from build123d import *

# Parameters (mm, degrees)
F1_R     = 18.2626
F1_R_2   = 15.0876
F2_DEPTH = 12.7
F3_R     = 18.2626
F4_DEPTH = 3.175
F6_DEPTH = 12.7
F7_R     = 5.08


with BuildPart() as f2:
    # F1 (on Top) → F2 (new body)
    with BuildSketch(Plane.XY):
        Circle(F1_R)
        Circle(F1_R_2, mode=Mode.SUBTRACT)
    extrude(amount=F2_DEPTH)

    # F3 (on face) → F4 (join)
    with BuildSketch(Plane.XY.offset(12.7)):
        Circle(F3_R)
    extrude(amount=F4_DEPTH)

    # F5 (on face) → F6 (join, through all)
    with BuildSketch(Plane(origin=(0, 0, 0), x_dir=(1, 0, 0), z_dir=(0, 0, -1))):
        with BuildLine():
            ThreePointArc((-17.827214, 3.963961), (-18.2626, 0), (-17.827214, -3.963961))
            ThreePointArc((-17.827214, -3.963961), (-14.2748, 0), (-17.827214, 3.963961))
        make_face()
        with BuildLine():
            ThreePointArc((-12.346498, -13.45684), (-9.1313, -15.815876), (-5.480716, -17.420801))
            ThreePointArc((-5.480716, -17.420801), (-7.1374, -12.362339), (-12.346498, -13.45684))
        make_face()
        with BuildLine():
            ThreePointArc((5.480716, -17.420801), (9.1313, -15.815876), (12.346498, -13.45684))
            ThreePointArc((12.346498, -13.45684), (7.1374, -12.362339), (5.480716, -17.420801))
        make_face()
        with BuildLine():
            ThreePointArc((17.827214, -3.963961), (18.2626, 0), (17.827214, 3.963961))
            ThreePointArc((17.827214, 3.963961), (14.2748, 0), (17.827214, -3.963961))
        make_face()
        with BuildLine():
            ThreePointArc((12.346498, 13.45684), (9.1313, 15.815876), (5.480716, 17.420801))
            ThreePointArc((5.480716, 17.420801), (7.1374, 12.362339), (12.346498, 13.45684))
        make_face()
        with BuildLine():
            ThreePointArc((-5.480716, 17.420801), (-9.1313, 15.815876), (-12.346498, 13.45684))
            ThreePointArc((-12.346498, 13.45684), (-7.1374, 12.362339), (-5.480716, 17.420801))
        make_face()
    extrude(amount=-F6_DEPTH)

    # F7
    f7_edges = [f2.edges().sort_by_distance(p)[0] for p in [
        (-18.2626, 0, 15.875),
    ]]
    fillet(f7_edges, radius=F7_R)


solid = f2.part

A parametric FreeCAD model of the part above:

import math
import FreeCAD as App
import Part
import Sketcher

V = App.Vector
Q = App.Units.Quantity


def edges_at(feature, points):
    """Names of the edges that pass closest to the given points."""
    edges = feature.Shape.Edges
    near = lambda p: min(range(len(edges)), key=lambda i: edges[i].distToShape(Part.Vertex(*p))[0])
    return sorted({f"Edge{near(p) + 1}" for p in points})

doc = App.newDocument("Part")
body = doc.addObject("PartDesign::Body", "Body")

# Sketch on XY plane
sketch1 = body.newObject("Sketcher::SketchObject", "Sketch")
sketch1.AttachmentSupport = (doc.getObject("XY_Plane"), [""])
sketch1.MapMode = "FlatFace"
sketch1.addGeometry([
    Part.Circle(V(0, 0, 0), V(0, 0, 1), 18),
    Part.Circle(V(0, 0, 0), V(0, 0, 1), 15),
], False)
sketch1.addConstraint([
    Sketcher.Constraint("Coincident", 0, 3, -1, 1),
    Sketcher.Constraint("Coincident", 1, 3, -1, 1),
    Sketcher.Constraint("Diameter", 0, Q("1.438 in")),
    Sketcher.Constraint("Diameter", 1, Q("1.188 in")),
])
pad1 = body.newObject("PartDesign::Pad", "Pad")
pad1.Profile = sketch1
pad1.Length = Q("0.5 in")

# Sketch on XY plane
sketch2 = body.newObject("Sketcher::SketchObject", "Sketch001")
sketch2.AttachmentSupport = (doc.getObject("XY_Plane"), [""])
sketch2.MapMode = "FlatFace"
sketch2.AttachmentOffset = App.Placement(V(0, 0, 0.5 * 25.4), App.Rotation())
sketch2.addGeometry(Part.Circle(V(0, 0, 0), V(0, 0, 1), 18), False)
sketch2.addConstraint([
    Sketcher.Constraint("Coincident", 0, 3, -1, 1),
    Sketcher.Constraint("Diameter", 0, Q("1.438 in")),
])
pad2 = body.newObject("PartDesign::Pad", "Pad001")
pad2.Profile = sketch2
pad2.Length = Q("0.125 in")

# Sketch on XY plane
sketch3 = body.newObject("Sketcher::SketchObject", "Sketch002")
sketch3.AttachmentSupport = (doc.getObject("XY_Plane"), [""])
sketch3.MapMode = "FlatFace"
sketch3.addGeometry([
    Part.ArcOfCircle(Part.Circle(V(-0.000015, 0, 0), V(0, 0, 1), 18.262585), math.radians(167.463961), math.radians(192.536039)),  # 0
    Part.ArcOfCircle(Part.Circle(V(-18.2626, 0, 0), V(0, 0, 1), 3.9878), math.radians(-83.731983), math.radians(83.731983)),  # 1
    Part.ArcOfCircle(Part.Circle(V(-0.00001, 0.000018, 0), V(0, 0, 1), 18.26258), math.radians(107.463956), math.radians(132.536042)),  # 2
    Part.ArcOfCircle(Part.Circle(V(-9.1313, 15.815875, 0), V(0, 0, 1), 3.9878), math.radians(-143.731992), math.radians(23.731991)),  # 3
    Part.ArcOfCircle(Part.Circle(V(0.00001, 0.000018, 0), V(0, 0, 1), 18.26258), math.radians(47.463958), math.radians(72.536044)),  # 4
    Part.ArcOfCircle(Part.Circle(V(9.1313, 15.815875, 0), V(0, 0, 1), 3.9878), math.radians(156.268009), math.radians(323.731992)),  # 5
    Part.ArcOfCircle(Part.Circle(V(0.000015, 0, 0), V(0, 0, 1), 18.262585), math.radians(-12.536039), math.radians(12.536039)),  # 6
    Part.ArcOfCircle(Part.Circle(V(18.2626, 0, 0), V(0, 0, 1), 3.9878), math.radians(96.268017), math.radians(263.731983)),  # 7
    Part.ArcOfCircle(Part.Circle(V(0.00001, -0.000018, 0), V(0, 0, 1), 18.26258), math.radians(-72.536044), math.radians(-47.463958)),  # 8
    Part.ArcOfCircle(Part.Circle(V(9.1313, -15.815875, 0), V(0, 0, 1), 3.9878), math.radians(36.268008), math.radians(203.731991)),  # 9
    Part.ArcOfCircle(Part.Circle(V(-0.00001, -0.000018, 0), V(0, 0, 1), 18.26258), math.radians(-132.536042), math.radians(-107.463956)),  # 10
    Part.ArcOfCircle(Part.Circle(V(-9.1313, -15.815875, 0), V(0, 0, 1), 3.9878), math.radians(-23.731991), math.radians(143.731992)),  # 11
], False)
sketch3.addConstraint([
    Sketcher.Constraint("Coincident", 0, 1, 1, 2),
    Sketcher.Constraint("Coincident", 1, 1, 0, 2),
    Sketcher.Constraint("Coincident", 2, 1, 3, 2),
    Sketcher.Constraint("Coincident", 3, 1, 2, 2),
    Sketcher.Constraint("Coincident", 4, 1, 5, 2),
    Sketcher.Constraint("Coincident", 5, 1, 4, 2),
    Sketcher.Constraint("Coincident", 6, 1, 7, 2),
    Sketcher.Constraint("Coincident", 7, 1, 6, 2),
    Sketcher.Constraint("Coincident", 8, 1, 9, 2),
    Sketcher.Constraint("Coincident", 9, 1, 8, 2),
    Sketcher.Constraint("Coincident", 10, 1, 11, 2),
    Sketcher.Constraint("Coincident", 11, 1, 10, 2),
    Sketcher.Constraint("Equal", 1, 3),
    Sketcher.Constraint("Equal", 2, 4),
    Sketcher.Constraint("Equal", 3, 5),
    Sketcher.Constraint("Equal", 0, 6),
    Sketcher.Constraint("Equal", 5, 7),
    Sketcher.Constraint("Equal", 4, 8),
    Sketcher.Constraint("Equal", 7, 9),
    Sketcher.Constraint("Equal", 8, 10),
    Sketcher.Constraint("Equal", 9, 11),
    Sketcher.Constraint("Symmetric", 0, 3, 6, 3, -1, 1),
    Sketcher.Constraint("Symmetric", 1, 3, 7, 3, -1, 1),
    Sketcher.Constraint("Symmetric", 2, 3, 8, 3, -1, 1),
    Sketcher.Constraint("Symmetric", 3, 3, 9, 3, -1, 1),
    Sketcher.Constraint("Symmetric", 4, 3, 10, 3, -1, 1),
    Sketcher.Constraint("Symmetric", 5, 3, 11, 3, -1, 1),
    Sketcher.Constraint("Symmetric", 2, 3, 4, 3, -2),
    Sketcher.Constraint("Symmetric", 3, 3, 5, 3, -2),
    Sketcher.Constraint("Symmetric", 1, 1, 6, 1, -2),
    Sketcher.Constraint("Radius", 1, Q("0.157 in")),
    Sketcher.Constraint("DistanceX", 1, 3, -1, 1, Q("0.719 in")),
    Sketcher.Constraint("Radius", 2, 18.26258),
    Sketcher.Constraint("DistanceX", 3, 3, 5, 3, Q("0.719 in")),
    Sketcher.Constraint("Radius", 0, 18.262585),
    Sketcher.Constraint("DistanceY", -1, 1, 2, 1, 17.420801),
    Sketcher.Constraint("DistanceX", -1, 1, 4, 1, 12.346498),
    Sketcher.Constraint("DistanceX", 0, 1, 0, 3, 17.827199),
    Sketcher.Constraint("DistanceX", 2, 1, 0, 3, 5.480701),
])
pad3 = body.newObject("PartDesign::Pad", "Pad002")
pad3.Profile = sketch3
pad3.Type = "UpToLast"
doc.recompute()

fillet = body.newObject("PartDesign::Fillet", "Fillet")
fillet.Base = (pad3, edges_at(pad3, [(-18.263, 0, 15.875)]))
fillet.Radius = Q("0.2 in")

doc.recompute()
